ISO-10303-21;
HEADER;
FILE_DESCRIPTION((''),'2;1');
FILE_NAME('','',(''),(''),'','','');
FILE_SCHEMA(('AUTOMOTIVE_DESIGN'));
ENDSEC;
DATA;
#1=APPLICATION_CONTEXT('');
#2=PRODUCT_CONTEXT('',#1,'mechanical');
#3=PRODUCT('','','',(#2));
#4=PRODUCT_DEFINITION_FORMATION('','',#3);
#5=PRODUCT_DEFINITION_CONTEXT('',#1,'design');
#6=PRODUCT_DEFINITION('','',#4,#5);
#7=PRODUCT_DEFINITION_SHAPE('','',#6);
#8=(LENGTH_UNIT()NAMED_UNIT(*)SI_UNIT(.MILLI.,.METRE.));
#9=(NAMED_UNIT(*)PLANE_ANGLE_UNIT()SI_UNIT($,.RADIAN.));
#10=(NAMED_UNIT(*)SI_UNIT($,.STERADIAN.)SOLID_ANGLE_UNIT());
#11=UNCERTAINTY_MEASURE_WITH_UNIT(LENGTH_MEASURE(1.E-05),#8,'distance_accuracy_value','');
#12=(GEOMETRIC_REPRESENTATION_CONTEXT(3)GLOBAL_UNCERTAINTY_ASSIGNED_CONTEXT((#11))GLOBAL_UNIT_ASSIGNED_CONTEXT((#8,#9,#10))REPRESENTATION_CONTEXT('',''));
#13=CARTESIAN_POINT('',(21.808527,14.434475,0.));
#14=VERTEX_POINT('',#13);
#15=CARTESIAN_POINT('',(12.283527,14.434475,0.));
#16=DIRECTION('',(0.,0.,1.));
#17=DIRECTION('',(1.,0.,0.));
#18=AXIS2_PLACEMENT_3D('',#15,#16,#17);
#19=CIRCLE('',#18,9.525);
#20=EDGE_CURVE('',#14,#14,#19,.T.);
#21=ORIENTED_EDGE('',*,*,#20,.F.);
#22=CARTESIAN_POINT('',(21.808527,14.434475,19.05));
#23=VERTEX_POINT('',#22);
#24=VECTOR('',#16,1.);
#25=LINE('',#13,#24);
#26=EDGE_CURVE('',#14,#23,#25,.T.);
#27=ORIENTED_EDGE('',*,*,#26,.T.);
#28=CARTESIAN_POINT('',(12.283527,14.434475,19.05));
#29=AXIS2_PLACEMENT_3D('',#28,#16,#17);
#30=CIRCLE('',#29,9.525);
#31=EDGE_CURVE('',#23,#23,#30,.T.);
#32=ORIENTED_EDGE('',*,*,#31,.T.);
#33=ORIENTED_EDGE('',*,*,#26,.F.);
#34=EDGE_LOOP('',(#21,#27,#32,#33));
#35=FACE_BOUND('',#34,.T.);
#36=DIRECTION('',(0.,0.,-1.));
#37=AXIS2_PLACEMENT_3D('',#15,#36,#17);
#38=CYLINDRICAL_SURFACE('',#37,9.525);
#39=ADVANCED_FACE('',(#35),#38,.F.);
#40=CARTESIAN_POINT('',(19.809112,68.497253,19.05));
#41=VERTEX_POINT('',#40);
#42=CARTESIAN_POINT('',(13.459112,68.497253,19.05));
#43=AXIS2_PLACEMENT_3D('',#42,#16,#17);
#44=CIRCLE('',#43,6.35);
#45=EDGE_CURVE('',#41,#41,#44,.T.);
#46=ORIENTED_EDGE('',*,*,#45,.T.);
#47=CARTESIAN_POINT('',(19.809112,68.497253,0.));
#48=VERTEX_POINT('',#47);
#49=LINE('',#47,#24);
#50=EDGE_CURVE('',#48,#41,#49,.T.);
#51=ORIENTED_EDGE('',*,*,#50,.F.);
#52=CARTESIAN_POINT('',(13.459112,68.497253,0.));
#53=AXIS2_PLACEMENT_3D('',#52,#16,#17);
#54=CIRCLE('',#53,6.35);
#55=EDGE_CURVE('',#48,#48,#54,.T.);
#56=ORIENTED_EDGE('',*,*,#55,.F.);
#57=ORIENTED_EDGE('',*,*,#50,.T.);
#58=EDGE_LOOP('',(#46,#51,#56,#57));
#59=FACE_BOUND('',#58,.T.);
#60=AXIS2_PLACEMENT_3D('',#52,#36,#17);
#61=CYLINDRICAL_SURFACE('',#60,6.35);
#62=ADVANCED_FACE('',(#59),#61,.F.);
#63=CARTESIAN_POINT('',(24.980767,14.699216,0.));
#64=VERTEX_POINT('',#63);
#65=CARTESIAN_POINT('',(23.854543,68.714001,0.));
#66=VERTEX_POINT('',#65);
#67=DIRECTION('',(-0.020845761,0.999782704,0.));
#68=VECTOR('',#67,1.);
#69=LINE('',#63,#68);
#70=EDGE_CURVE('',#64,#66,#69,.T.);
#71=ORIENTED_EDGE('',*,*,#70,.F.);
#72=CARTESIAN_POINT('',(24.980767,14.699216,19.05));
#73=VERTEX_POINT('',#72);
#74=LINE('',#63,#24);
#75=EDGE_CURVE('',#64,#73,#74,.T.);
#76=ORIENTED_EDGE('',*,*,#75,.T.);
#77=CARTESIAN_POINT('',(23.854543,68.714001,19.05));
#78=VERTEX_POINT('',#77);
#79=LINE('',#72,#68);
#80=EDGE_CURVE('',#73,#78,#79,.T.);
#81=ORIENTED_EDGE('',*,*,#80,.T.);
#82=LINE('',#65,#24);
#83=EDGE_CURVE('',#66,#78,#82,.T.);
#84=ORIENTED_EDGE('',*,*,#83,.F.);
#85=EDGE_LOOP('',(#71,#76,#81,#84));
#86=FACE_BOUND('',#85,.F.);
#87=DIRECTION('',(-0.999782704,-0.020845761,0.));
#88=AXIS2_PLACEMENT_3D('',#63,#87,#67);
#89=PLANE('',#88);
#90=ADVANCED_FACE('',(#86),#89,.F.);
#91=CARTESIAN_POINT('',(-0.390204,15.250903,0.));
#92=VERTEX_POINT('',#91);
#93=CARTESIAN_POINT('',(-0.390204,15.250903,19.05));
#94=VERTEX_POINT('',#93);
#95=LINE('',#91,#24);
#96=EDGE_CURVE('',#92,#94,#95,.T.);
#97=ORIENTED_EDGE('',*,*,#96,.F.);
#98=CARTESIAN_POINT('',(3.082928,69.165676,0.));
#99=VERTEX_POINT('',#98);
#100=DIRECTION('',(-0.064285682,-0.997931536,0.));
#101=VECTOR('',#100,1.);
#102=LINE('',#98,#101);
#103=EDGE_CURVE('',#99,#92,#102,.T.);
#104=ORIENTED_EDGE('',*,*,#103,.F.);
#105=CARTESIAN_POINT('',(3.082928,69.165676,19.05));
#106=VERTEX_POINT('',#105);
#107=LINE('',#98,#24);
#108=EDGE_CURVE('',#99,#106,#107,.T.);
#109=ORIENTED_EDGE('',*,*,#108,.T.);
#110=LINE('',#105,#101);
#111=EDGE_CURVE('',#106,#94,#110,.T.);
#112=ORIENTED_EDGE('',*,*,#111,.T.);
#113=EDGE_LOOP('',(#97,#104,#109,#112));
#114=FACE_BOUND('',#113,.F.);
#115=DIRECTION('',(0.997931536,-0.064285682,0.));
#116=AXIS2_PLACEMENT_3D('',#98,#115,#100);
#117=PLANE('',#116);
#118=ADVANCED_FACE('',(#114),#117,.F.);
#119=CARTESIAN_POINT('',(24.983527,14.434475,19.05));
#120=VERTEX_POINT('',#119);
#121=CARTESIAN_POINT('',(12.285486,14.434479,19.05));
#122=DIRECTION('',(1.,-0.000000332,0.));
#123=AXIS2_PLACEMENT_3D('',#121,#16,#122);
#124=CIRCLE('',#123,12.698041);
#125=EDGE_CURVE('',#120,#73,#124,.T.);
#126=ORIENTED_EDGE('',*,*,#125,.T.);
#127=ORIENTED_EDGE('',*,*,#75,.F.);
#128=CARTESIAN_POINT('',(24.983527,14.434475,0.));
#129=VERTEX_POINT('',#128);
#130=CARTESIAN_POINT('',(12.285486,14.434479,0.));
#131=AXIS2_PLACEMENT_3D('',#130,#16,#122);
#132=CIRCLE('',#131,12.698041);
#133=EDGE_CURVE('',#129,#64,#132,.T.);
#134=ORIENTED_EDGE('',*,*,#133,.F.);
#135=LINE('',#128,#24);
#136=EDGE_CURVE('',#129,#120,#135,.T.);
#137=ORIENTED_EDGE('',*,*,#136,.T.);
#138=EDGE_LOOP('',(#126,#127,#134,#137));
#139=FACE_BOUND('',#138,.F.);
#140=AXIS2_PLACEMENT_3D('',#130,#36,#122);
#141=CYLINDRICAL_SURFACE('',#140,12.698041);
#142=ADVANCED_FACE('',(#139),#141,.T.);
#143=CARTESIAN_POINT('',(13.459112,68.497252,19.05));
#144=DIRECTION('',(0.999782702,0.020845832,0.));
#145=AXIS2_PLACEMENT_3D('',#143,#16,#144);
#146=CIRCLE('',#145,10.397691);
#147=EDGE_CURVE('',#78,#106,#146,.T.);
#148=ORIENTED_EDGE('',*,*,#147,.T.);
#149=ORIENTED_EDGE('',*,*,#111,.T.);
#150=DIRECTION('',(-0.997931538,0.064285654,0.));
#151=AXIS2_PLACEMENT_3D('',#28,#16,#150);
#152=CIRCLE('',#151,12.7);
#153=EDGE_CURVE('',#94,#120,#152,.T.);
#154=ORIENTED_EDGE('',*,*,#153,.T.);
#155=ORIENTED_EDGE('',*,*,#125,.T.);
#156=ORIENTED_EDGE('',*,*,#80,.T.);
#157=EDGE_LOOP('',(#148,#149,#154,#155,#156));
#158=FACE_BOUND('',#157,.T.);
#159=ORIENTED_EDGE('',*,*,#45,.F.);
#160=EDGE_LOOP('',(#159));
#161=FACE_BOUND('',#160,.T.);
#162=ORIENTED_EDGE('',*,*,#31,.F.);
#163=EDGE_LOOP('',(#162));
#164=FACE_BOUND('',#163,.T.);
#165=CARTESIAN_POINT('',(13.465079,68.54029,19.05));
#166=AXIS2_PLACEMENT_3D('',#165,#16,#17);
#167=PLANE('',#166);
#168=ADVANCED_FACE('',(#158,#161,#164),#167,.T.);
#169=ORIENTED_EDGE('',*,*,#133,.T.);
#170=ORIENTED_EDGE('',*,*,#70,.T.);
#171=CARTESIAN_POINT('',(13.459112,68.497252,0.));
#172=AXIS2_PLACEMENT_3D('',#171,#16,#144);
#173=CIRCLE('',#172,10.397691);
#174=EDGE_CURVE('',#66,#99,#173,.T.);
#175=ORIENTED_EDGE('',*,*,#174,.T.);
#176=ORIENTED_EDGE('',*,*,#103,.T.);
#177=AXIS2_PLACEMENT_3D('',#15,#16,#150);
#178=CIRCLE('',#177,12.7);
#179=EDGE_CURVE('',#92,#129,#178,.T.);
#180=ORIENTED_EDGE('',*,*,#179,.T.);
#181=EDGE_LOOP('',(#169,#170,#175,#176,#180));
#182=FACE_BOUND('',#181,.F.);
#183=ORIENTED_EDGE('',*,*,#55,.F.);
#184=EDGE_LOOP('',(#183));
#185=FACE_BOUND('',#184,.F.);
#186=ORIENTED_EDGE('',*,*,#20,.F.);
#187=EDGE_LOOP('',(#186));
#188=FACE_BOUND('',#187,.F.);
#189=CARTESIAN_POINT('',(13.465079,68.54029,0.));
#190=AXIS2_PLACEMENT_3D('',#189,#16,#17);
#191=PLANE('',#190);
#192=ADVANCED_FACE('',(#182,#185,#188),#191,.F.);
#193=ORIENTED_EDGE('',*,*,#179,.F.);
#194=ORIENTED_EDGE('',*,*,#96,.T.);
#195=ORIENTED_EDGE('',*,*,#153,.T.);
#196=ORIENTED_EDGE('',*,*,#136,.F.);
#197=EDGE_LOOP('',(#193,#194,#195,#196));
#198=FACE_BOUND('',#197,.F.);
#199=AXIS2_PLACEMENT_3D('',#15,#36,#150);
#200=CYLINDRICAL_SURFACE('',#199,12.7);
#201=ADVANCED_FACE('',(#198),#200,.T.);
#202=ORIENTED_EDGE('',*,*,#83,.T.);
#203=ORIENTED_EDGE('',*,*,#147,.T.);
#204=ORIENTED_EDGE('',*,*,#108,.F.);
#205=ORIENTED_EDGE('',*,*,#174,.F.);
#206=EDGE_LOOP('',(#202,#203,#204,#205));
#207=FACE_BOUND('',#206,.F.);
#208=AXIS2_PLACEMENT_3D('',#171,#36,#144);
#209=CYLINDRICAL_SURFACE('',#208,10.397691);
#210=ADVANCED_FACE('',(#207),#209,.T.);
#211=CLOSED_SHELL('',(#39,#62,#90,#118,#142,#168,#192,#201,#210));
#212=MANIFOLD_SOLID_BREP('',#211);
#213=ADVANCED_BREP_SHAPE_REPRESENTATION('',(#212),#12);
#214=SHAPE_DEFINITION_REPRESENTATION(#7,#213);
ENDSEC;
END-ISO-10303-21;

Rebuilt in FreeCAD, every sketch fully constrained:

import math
import FreeCAD as App
import Part
import Sketcher

V = App.Vector
Q = App.Units.Quantity

doc = App.newDocument("Part")
body = doc.addObject("PartDesign::Body", "Body")

# Sketch on XY plane
sketch1 = body.newObject("Sketcher::SketchObject", "Sketch")
sketch1.AttachmentSupport = (doc.getObject("XY_Plane"), [""])
sketch1.MapMode = "FlatFace"
sketch1.addGeometry(Part.ArcOfCircle(Part.Circle(V(13.46, 68.5, 0), V(0, 0, 1), 10.4), math.radians(1), math.radians(176)), False)
sketch1.addGeometry(Part.LineSegment(V(3.08, 69.17, 0), V(-0.39, 15.25, 0)), False)
sketch1.addGeometry(Part.ArcOfCircle(Part.Circle(V(12.28, 14.43, 0), V(0, 0, 1), 12.7), math.radians(176), math.radians(360)), False)
sketch1.addGeometry(Part.ArcOfCircle(Part.Circle(V(12.29, 14.43, 0), V(0, 0, 1), 12.7), math.radians(0), math.radians(1.19)), False)
sketch1.addGeometry(Part.LineSegment(V(24.98, 14.7, 0), V(23.85, 68.71, 0)), False)
sketch1.addGeometry(Part.Circle(V(12.28, 14.43, 0), V(0, 0, 1), 9.53), False)
sketch1.addGeometry(Part.Circle(V(13.46, 68.5, 0), V(0, 0, 1), 6.35), False)
sketch1.addConstraint(Sketcher.Constraint("Tangent", 0, 2, 1, 1))
sketch1.addConstraint(Sketcher.Constraint("Tangent", 1, 2, 2, 1))
sketch1.addConstraint(Sketcher.Constraint("Tangent", 2, 2, 3, 1))
sketch1.addConstraint(Sketcher.Constraint("Coincident", 3, 2, 4, 1))
sketch1.addConstraint(Sketcher.Constraint("Tangent", 4, 2, 0, 1))
sketch1.addConstraint(Sketcher.Constraint("Coincident", 5, 3, 2, 3))
sketch1.addConstraint(Sketcher.Constraint("Coincident", 6, 3, 0, 3))
sketch1.addConstraint(Sketcher.Constraint("Horizontal", 5, 3, 2, 2))
sketch1.addConstraint(Sketcher.Constraint("Equal", 1, 4))
sketch1.addConstraint(Sketcher.Constraint("Diameter", 6, Q("0.5 in")))
sketch1.addConstraint(Sketcher.Constraint("Radius", 2, Q("0.5 in")))
sketch1.addConstraint(Sketcher.Constraint("Diameter", 5, Q("0.75 in")))
sketch1.addConstraint(Sketcher.Constraint("Radius", 0, 10.397691))
sketch1.addConstraint(Sketcher.Constraint("Radius", 3, 12.698041))
sketch1.addConstraint(Sketcher.Constraint("DistanceY", -1, 1, 4, 2, 68.714001))
sketch1.addConstraint(Sketcher.Constraint("DistanceX", 0, 2, 2, 3, 9.200599))
sketch1.addConstraint(Sketcher.Constraint("DistanceY", 2, 3, 0, 2, 54.731201))
sketch1.addConstraint(Sketcher.Constraint("DistanceX", -1, 1, 0, 3, 13.459112))
pad1 = body.newObject("PartDesign::Pad", "Pad")
pad1.Profile = sketch1
pad1.Length = Q("0.75 in")

doc.recompute()
